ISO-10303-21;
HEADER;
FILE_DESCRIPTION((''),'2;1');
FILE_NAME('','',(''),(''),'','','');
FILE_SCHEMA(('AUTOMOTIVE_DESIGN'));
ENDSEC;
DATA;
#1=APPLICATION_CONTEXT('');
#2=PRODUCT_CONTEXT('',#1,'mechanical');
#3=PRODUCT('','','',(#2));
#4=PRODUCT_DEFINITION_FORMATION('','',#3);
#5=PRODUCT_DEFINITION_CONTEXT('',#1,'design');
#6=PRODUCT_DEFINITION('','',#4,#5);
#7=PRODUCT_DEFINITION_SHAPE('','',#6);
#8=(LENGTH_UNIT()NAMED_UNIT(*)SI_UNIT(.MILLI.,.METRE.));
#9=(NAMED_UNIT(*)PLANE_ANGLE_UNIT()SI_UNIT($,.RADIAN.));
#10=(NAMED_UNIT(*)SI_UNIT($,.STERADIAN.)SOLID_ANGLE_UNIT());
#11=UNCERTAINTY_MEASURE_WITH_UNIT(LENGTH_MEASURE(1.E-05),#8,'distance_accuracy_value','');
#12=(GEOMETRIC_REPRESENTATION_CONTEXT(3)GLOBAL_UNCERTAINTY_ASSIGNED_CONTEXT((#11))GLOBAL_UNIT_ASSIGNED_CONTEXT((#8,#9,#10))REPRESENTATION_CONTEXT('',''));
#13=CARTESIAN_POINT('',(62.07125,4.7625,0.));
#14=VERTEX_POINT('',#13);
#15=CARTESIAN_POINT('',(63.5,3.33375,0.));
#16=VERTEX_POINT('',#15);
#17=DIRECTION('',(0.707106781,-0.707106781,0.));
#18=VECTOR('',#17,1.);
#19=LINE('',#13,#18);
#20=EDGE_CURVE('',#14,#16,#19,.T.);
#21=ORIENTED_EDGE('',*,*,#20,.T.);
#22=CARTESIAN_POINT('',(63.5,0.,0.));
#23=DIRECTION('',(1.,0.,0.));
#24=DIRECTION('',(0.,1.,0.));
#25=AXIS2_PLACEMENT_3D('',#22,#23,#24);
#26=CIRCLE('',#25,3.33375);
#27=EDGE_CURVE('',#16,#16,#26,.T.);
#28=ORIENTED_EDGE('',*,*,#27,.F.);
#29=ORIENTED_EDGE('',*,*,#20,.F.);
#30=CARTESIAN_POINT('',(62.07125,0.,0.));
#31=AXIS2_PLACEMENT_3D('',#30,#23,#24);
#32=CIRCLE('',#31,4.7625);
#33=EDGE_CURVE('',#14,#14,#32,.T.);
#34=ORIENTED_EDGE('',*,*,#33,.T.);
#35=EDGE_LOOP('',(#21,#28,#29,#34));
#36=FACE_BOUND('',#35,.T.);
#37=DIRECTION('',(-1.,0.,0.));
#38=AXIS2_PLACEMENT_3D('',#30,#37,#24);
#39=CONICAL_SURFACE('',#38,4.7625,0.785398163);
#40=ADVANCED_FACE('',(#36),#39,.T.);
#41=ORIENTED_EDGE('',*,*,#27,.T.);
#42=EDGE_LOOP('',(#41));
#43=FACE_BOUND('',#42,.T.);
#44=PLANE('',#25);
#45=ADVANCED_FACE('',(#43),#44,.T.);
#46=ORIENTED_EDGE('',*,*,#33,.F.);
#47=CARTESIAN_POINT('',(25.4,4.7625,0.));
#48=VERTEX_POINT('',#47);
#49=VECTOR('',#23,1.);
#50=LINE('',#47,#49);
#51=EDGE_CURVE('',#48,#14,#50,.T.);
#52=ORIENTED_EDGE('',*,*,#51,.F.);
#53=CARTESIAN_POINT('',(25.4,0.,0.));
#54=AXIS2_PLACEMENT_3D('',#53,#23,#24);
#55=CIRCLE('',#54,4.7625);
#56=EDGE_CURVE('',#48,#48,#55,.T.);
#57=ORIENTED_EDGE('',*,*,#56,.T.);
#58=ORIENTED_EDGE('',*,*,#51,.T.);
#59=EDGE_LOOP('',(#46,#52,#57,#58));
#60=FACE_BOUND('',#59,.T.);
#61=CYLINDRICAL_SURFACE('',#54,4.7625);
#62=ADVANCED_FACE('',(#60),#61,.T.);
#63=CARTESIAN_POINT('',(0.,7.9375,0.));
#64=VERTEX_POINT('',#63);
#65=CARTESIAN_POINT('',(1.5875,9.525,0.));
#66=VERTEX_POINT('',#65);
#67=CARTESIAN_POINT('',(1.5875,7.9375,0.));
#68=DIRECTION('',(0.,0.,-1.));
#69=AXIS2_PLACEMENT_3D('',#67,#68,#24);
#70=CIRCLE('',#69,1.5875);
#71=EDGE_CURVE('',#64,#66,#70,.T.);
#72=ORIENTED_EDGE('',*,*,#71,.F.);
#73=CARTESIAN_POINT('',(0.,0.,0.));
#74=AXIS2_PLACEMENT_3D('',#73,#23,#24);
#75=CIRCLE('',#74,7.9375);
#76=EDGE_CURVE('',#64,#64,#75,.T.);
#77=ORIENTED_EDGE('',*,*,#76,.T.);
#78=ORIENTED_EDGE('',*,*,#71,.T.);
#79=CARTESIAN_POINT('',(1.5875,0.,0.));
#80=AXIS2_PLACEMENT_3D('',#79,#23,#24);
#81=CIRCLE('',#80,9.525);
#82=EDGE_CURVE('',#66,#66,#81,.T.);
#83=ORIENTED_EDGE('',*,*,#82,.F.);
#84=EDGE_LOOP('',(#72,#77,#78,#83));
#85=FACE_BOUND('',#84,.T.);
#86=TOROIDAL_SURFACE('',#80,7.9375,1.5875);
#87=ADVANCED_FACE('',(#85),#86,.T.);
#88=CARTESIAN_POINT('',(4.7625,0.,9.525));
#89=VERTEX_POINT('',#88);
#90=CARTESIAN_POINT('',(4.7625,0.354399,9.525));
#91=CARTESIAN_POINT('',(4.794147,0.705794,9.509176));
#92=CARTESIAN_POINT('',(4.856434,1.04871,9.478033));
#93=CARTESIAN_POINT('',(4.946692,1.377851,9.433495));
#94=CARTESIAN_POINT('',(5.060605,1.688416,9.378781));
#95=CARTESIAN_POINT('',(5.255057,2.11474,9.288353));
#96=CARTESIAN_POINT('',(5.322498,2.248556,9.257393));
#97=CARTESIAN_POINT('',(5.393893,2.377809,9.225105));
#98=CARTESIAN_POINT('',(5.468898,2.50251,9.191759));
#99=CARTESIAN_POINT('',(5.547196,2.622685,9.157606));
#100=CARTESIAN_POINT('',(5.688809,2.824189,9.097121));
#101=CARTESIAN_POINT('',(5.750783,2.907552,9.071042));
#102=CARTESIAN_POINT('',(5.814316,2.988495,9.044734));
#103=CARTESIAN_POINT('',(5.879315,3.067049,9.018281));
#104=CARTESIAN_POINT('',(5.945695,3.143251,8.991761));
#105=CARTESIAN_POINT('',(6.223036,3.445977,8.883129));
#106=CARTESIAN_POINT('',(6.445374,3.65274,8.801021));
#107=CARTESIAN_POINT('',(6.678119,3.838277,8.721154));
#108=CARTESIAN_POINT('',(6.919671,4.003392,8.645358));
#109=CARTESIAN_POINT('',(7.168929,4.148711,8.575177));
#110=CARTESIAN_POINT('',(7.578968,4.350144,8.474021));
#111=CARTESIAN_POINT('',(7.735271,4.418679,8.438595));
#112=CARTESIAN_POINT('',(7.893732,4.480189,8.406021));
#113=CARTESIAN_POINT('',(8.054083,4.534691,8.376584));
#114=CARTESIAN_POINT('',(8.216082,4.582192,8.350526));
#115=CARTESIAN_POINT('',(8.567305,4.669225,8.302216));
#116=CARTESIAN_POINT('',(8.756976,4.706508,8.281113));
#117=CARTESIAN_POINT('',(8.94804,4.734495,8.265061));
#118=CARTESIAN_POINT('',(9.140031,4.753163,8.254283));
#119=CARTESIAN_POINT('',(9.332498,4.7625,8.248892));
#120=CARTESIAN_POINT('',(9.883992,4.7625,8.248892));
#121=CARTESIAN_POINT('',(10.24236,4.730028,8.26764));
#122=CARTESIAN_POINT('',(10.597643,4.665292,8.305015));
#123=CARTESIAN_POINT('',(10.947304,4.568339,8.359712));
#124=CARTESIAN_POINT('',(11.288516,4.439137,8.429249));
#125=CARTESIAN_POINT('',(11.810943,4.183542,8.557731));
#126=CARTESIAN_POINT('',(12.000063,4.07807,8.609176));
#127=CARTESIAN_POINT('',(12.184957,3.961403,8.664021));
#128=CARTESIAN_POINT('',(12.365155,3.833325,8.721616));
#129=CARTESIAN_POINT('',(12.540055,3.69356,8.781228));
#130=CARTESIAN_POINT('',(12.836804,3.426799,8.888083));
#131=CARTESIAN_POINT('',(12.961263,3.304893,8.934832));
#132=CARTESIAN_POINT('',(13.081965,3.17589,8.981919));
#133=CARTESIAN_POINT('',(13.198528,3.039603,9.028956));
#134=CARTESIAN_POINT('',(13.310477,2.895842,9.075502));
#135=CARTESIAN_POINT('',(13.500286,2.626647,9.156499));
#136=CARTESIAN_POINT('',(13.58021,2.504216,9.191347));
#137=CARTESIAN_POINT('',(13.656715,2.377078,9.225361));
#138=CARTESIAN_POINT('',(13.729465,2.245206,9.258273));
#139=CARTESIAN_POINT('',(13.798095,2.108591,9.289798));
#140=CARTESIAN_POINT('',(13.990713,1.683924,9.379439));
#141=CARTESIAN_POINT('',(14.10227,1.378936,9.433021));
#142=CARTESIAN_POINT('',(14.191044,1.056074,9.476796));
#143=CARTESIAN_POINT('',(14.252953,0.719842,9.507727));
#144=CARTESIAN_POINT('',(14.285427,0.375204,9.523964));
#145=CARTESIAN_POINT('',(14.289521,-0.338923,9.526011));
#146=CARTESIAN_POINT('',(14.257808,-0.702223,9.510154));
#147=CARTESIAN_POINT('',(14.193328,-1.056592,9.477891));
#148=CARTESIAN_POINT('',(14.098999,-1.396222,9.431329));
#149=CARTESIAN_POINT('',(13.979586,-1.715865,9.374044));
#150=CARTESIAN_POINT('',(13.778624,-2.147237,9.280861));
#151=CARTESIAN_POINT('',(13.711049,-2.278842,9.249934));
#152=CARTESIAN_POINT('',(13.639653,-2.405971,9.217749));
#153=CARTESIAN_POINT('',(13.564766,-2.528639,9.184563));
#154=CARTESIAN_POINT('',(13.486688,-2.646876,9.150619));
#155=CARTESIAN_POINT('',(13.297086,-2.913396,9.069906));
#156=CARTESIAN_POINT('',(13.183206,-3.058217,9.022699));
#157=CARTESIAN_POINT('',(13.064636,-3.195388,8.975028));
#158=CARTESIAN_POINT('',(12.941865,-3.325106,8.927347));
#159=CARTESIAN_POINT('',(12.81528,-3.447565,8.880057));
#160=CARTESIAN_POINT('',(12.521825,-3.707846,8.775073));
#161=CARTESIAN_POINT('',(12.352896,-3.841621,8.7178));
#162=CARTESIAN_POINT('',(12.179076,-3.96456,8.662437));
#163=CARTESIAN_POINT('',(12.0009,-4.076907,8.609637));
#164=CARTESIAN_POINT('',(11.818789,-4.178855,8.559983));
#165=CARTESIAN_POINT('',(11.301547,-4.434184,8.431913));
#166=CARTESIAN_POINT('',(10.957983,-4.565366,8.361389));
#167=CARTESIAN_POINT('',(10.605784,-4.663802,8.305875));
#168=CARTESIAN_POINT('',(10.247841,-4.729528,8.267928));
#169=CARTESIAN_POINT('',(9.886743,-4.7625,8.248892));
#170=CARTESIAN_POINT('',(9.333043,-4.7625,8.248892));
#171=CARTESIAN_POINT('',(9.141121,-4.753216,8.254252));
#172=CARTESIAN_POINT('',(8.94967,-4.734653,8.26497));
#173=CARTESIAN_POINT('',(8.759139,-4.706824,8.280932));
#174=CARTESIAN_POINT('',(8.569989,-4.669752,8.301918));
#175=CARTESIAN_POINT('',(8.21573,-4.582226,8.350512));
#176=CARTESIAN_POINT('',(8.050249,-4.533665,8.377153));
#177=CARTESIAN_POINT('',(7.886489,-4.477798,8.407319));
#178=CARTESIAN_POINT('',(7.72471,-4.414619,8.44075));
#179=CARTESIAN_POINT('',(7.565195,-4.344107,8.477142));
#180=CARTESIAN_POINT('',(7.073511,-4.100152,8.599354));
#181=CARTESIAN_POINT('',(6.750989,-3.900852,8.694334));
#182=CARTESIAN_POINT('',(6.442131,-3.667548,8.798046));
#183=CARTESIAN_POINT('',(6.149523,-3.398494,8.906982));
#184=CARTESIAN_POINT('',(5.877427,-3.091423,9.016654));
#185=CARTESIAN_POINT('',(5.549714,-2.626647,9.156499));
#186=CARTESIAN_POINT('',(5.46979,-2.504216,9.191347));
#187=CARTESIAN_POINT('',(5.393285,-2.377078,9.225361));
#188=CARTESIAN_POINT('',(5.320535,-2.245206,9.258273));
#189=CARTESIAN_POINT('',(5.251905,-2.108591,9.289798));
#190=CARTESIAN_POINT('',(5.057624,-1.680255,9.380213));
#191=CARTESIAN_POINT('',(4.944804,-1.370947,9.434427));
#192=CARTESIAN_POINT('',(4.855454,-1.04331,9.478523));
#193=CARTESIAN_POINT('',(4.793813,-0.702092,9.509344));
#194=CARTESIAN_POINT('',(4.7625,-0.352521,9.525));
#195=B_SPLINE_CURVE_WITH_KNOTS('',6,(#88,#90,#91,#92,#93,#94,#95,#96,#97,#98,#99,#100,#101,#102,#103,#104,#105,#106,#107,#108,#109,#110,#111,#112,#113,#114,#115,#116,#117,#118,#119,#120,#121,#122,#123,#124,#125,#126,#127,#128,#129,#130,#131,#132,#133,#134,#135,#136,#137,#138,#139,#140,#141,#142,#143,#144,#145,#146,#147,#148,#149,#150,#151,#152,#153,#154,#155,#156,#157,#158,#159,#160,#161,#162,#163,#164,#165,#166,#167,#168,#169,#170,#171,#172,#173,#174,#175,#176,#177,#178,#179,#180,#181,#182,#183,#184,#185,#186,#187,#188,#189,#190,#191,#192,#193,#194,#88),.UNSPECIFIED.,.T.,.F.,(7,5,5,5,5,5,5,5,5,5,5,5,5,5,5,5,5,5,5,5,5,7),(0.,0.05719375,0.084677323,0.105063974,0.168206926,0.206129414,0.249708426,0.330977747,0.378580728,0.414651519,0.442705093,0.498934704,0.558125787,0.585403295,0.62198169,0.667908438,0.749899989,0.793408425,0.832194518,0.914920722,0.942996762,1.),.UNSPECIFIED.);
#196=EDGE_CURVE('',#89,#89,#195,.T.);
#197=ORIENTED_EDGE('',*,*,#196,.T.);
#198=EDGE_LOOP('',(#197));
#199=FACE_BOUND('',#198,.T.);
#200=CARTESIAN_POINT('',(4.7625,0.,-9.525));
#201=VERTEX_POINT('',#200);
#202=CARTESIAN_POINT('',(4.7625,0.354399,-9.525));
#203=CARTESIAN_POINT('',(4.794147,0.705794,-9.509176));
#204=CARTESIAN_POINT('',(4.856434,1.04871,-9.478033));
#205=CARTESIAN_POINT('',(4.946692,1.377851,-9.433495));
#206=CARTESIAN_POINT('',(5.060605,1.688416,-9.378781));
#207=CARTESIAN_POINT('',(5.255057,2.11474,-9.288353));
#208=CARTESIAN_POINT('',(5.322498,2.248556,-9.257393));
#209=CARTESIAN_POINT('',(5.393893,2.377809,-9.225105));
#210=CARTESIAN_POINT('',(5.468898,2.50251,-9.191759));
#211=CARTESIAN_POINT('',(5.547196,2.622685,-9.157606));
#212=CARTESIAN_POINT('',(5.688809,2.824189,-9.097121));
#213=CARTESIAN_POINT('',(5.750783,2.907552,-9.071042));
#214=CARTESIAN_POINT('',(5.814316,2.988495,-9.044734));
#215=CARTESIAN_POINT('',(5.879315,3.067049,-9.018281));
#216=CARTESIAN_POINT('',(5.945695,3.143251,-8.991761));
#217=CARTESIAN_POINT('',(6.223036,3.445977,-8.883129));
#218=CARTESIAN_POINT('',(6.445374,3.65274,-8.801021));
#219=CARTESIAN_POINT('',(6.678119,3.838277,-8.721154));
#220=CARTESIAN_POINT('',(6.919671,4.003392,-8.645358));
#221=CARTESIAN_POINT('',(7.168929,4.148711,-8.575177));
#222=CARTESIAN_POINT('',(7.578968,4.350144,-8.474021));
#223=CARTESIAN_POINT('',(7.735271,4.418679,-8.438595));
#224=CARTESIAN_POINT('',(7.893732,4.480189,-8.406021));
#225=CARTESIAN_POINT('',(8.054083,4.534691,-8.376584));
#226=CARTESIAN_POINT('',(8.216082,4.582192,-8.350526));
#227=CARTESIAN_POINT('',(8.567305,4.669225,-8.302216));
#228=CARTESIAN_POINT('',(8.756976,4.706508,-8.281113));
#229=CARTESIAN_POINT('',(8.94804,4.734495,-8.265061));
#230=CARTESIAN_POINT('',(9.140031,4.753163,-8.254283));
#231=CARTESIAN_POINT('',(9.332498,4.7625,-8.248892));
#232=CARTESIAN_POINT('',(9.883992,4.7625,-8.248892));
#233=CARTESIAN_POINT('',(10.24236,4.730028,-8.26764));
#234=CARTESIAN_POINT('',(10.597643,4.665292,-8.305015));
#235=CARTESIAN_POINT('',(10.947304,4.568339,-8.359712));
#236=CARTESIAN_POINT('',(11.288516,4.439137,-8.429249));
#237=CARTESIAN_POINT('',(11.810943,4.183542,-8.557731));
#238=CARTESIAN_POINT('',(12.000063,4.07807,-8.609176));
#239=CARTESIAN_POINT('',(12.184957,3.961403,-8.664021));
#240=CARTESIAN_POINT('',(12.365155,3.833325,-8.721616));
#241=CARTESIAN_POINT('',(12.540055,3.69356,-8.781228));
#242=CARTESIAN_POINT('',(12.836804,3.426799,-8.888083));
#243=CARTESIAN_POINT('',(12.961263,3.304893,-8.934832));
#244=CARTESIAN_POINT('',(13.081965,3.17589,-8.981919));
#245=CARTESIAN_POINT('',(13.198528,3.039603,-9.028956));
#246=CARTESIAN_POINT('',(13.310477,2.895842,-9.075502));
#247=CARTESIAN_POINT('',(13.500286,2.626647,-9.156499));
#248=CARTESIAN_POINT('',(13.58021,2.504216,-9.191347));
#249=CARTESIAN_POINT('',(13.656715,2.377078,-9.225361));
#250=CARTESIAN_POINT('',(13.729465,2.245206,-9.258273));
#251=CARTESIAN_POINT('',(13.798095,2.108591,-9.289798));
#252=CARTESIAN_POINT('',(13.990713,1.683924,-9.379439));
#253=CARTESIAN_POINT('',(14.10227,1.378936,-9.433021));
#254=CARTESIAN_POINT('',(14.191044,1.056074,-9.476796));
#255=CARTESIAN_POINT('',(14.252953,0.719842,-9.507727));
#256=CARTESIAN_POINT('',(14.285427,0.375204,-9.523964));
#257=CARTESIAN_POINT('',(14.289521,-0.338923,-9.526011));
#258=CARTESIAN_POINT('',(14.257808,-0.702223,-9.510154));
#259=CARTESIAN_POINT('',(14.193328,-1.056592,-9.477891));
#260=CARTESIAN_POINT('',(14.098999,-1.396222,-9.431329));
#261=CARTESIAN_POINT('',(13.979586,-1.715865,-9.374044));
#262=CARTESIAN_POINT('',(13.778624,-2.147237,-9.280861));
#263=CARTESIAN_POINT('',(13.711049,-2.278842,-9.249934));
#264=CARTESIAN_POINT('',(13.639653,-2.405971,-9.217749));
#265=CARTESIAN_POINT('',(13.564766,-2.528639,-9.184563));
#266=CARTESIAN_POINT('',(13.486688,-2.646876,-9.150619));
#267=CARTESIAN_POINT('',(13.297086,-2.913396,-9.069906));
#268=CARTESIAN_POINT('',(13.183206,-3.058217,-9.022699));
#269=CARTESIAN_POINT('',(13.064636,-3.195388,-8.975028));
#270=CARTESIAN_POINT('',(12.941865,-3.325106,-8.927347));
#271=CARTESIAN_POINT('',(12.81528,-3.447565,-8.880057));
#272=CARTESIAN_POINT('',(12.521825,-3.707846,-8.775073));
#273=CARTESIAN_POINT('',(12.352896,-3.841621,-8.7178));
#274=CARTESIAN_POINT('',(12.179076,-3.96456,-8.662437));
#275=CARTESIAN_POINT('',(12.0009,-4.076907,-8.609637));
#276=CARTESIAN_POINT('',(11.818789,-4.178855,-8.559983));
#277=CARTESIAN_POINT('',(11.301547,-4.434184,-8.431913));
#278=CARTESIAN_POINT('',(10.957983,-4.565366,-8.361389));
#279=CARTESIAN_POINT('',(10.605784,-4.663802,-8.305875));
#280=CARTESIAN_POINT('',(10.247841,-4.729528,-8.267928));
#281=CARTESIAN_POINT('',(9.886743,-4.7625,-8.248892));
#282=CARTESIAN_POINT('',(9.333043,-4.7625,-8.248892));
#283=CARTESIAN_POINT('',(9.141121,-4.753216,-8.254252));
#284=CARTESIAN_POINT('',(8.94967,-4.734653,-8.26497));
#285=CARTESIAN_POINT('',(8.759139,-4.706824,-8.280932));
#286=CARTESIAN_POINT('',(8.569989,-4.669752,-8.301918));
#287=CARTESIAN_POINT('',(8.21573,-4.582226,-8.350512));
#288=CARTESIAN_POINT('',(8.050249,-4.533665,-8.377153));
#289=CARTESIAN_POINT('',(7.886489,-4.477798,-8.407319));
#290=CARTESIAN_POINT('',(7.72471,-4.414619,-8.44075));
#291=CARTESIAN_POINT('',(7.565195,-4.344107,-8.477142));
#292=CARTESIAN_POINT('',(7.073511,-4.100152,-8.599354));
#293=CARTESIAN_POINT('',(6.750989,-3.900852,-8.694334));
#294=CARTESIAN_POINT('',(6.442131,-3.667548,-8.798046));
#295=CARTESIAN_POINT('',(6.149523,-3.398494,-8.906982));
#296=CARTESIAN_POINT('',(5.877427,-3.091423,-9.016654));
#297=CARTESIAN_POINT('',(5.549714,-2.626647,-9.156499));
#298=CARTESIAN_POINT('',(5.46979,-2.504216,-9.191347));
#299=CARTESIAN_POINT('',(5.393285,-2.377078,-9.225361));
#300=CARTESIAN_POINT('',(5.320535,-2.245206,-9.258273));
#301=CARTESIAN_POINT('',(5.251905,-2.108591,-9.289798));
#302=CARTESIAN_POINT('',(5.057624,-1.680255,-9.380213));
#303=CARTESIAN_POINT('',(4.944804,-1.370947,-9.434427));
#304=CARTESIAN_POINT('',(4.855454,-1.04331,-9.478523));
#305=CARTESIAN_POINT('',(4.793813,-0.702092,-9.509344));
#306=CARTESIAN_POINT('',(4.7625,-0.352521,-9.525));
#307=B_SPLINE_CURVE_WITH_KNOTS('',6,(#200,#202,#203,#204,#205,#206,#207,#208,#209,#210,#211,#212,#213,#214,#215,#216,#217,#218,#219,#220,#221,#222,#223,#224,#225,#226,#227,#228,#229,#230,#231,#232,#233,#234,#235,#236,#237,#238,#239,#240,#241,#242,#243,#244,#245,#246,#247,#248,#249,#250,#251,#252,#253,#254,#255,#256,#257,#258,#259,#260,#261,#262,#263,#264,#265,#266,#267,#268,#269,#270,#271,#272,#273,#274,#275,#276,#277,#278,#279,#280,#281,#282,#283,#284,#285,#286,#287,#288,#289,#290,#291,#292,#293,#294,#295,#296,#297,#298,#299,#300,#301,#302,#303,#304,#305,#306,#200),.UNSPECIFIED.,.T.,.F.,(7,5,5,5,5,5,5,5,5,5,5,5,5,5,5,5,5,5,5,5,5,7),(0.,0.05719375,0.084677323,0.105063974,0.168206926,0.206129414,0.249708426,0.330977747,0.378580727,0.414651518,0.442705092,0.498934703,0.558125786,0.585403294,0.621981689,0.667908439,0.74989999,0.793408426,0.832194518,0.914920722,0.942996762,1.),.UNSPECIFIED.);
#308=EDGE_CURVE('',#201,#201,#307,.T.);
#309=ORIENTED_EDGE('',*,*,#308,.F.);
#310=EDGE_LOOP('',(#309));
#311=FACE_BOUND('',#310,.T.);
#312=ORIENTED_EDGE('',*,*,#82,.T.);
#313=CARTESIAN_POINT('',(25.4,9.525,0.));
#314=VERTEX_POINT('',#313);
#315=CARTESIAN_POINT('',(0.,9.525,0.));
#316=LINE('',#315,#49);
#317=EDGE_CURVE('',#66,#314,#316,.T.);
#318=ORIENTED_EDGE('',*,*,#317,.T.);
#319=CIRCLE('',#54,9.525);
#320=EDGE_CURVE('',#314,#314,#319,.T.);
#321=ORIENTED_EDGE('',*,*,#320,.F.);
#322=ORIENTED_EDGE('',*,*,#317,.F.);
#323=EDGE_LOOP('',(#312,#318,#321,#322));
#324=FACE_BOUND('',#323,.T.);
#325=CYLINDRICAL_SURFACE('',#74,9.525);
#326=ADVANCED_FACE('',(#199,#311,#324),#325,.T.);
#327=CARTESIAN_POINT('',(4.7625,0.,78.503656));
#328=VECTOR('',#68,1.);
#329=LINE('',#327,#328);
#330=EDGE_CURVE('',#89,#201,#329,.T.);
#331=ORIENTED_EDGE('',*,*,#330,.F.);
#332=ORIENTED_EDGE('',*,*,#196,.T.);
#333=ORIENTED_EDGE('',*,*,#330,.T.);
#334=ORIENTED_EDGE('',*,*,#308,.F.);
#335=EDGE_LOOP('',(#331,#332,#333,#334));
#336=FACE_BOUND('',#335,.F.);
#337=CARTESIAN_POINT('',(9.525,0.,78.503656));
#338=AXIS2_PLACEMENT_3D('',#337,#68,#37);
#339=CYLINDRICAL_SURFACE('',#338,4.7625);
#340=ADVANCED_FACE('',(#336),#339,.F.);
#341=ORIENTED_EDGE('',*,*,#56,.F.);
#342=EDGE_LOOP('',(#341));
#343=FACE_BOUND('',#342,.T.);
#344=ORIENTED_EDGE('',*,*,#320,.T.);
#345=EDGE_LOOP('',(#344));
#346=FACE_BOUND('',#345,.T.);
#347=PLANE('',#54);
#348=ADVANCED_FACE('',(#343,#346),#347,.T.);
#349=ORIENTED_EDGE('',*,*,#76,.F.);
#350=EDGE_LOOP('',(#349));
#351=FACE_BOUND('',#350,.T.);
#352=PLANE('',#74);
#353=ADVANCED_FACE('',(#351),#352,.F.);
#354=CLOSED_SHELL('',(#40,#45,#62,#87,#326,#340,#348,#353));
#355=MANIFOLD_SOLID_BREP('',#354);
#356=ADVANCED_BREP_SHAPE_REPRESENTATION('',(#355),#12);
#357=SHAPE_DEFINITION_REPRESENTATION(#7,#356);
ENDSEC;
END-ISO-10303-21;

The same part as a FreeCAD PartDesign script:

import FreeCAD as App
import Part
import Sketcher
from FreeCAD import Vector
Q = App.Units.Quantity


def edges_at(feature, points):
    """Names of the edges that pass closest to the given points."""
    edges = feature.Shape.Edges
    near = lambda p: min(range(len(edges)), key=lambda i: edges[i].distToShape(Part.Vertex(*p))[0])
    return sorted({f"Edge{near(p) + 1}" for p in points})

doc = App.newDocument("Part")
body = doc.addObject("PartDesign::Body", "Body")

sketch1 = doc.addObject("Sketcher::SketchObject", "Sketch")
body.addObject(sketch1)
sketch1.AttachmentSupport = (doc.XY_Plane, [""])
sketch1.MapMode = "FlatFace"
sketch1.addGeometry(Part.LineSegment(Vector(0, 9.525, 0), Vector(0, 0, 0)), False)
sketch1.addGeometry(Part.LineSegment(Vector(0, 0, 0), Vector(63.5, 0, 0)), False)
sketch1.addGeometry(Part.LineSegment(Vector(63.5, 0, 0), Vector(63.5, 4.7625, 0)), False)
sketch1.addGeometry(Part.LineSegment(Vector(63.5, 4.7625, 0), Vector(25.4, 4.7625, 0)), False)
sketch1.addGeometry(Part.LineSegment(Vector(25.4, 4.7625, 0), Vector(25.4, 9.525, 0)), False)
sketch1.addGeometry(Part.LineSegment(Vector(25.4, 9.525, 0), Vector(0, 9.525, 0)), False)
sketch1.addConstraint(Sketcher.Constraint("Coincident", 0, 2, 1, 1))
sketch1.addConstraint(Sketcher.Constraint("Coincident", 1, 2, 2, 1))
sketch1.addConstraint(Sketcher.Constraint("Coincident", 2, 2, 3, 1))
sketch1.addConstraint(Sketcher.Constraint("Coincident", 3, 2, 4, 1))
sketch1.addConstraint(Sketcher.Constraint("Coincident", 4, 2, 5, 1))
sketch1.addConstraint(Sketcher.Constraint("Coincident", 5, 2, 0, 1))
sketch1.addConstraint(Sketcher.Constraint("Vertical", 0))
sketch1.addConstraint(Sketcher.Constraint("Horizontal", 1))
sketch1.addConstraint(Sketcher.Constraint("Vertical", 2))
sketch1.addConstraint(Sketcher.Constraint("Horizontal", 3))
sketch1.addConstraint(Sketcher.Constraint("Vertical", 4))
sketch1.addConstraint(Sketcher.Constraint("Horizontal", 5))
sketch1.addConstraint(Sketcher.Constraint("Coincident", 0, 2, -1, 1))
sketch1.addConstraint(Sketcher.Constraint("Equal", 2, 4))
sketch1.addConstraint(Sketcher.Constraint("DistanceX", 5, 2, 5, 1, Q("1 in")))
sketch1.addConstraint(Sketcher.Constraint("DistanceX", 1, 1, 1, 2, Q("2.5 in")))
sketch1.addConstraint(Sketcher.Constraint("DistanceY", 0, 2, 0, 1, Q("0.375 in")))
revolution = doc.addObject("PartDesign::Revolution", "Revolution")
body.addObject(revolution)
revolution.Profile = sketch1
revolution.ReferenceAxis = (sketch1, ["H_Axis"])
revolution.Angle = 360

sketch2 = doc.addObject("Sketcher::SketchObject", "Sketch001")
body.addObject(sketch2)
sketch2.AttachmentSupport = (doc.XY_Plane, [""])
sketch2.MapMode = "FlatFace"
sketch2.AttachmentOffset = App.Placement(Vector(0, 0, 0.375 * 25.4), App.Rotation())
sketch2.addGeometry(Part.Circle(Vector(9.525, 0, 0), Vector(0, 0, 1), 4.7625), False)
sketch2.addConstraint(Sketcher.Constraint("PointOnObject", 0, 3, -1))
sketch2.addConstraint(Sketcher.Constraint("Diameter", 0, Q("0.375 in")))
sketch2.addConstraint(Sketcher.Constraint("DistanceX", -1, 1, 0, 3, Q("0.375 in")))
doc.recompute()
hole = doc.addObject("PartDesign::Hole", "Hole")
body.addObject(hole)
hole.Profile = sketch2
hole.ThreadType = "None"
hole.Diameter = Q("0.375 in")
hole.DepthType = "ThroughAll"
doc.recompute()

fillet = doc.addObject("PartDesign::Fillet", "Fillet")
body.addObject(fillet)
fillet.Base = (hole, edges_at(hole, [(0, -9.525, 0)]))
fillet.Radius = Q("0.0625 in")
doc.recompute()

chamfer = doc.addObject("PartDesign::Chamfer", "Chamfer")
body.addObject(chamfer)
chamfer.Base = (fillet, edges_at(fillet, [(63.5, -4.763, 0)]))
chamfer.Size = 1.42875

doc.recompute()
